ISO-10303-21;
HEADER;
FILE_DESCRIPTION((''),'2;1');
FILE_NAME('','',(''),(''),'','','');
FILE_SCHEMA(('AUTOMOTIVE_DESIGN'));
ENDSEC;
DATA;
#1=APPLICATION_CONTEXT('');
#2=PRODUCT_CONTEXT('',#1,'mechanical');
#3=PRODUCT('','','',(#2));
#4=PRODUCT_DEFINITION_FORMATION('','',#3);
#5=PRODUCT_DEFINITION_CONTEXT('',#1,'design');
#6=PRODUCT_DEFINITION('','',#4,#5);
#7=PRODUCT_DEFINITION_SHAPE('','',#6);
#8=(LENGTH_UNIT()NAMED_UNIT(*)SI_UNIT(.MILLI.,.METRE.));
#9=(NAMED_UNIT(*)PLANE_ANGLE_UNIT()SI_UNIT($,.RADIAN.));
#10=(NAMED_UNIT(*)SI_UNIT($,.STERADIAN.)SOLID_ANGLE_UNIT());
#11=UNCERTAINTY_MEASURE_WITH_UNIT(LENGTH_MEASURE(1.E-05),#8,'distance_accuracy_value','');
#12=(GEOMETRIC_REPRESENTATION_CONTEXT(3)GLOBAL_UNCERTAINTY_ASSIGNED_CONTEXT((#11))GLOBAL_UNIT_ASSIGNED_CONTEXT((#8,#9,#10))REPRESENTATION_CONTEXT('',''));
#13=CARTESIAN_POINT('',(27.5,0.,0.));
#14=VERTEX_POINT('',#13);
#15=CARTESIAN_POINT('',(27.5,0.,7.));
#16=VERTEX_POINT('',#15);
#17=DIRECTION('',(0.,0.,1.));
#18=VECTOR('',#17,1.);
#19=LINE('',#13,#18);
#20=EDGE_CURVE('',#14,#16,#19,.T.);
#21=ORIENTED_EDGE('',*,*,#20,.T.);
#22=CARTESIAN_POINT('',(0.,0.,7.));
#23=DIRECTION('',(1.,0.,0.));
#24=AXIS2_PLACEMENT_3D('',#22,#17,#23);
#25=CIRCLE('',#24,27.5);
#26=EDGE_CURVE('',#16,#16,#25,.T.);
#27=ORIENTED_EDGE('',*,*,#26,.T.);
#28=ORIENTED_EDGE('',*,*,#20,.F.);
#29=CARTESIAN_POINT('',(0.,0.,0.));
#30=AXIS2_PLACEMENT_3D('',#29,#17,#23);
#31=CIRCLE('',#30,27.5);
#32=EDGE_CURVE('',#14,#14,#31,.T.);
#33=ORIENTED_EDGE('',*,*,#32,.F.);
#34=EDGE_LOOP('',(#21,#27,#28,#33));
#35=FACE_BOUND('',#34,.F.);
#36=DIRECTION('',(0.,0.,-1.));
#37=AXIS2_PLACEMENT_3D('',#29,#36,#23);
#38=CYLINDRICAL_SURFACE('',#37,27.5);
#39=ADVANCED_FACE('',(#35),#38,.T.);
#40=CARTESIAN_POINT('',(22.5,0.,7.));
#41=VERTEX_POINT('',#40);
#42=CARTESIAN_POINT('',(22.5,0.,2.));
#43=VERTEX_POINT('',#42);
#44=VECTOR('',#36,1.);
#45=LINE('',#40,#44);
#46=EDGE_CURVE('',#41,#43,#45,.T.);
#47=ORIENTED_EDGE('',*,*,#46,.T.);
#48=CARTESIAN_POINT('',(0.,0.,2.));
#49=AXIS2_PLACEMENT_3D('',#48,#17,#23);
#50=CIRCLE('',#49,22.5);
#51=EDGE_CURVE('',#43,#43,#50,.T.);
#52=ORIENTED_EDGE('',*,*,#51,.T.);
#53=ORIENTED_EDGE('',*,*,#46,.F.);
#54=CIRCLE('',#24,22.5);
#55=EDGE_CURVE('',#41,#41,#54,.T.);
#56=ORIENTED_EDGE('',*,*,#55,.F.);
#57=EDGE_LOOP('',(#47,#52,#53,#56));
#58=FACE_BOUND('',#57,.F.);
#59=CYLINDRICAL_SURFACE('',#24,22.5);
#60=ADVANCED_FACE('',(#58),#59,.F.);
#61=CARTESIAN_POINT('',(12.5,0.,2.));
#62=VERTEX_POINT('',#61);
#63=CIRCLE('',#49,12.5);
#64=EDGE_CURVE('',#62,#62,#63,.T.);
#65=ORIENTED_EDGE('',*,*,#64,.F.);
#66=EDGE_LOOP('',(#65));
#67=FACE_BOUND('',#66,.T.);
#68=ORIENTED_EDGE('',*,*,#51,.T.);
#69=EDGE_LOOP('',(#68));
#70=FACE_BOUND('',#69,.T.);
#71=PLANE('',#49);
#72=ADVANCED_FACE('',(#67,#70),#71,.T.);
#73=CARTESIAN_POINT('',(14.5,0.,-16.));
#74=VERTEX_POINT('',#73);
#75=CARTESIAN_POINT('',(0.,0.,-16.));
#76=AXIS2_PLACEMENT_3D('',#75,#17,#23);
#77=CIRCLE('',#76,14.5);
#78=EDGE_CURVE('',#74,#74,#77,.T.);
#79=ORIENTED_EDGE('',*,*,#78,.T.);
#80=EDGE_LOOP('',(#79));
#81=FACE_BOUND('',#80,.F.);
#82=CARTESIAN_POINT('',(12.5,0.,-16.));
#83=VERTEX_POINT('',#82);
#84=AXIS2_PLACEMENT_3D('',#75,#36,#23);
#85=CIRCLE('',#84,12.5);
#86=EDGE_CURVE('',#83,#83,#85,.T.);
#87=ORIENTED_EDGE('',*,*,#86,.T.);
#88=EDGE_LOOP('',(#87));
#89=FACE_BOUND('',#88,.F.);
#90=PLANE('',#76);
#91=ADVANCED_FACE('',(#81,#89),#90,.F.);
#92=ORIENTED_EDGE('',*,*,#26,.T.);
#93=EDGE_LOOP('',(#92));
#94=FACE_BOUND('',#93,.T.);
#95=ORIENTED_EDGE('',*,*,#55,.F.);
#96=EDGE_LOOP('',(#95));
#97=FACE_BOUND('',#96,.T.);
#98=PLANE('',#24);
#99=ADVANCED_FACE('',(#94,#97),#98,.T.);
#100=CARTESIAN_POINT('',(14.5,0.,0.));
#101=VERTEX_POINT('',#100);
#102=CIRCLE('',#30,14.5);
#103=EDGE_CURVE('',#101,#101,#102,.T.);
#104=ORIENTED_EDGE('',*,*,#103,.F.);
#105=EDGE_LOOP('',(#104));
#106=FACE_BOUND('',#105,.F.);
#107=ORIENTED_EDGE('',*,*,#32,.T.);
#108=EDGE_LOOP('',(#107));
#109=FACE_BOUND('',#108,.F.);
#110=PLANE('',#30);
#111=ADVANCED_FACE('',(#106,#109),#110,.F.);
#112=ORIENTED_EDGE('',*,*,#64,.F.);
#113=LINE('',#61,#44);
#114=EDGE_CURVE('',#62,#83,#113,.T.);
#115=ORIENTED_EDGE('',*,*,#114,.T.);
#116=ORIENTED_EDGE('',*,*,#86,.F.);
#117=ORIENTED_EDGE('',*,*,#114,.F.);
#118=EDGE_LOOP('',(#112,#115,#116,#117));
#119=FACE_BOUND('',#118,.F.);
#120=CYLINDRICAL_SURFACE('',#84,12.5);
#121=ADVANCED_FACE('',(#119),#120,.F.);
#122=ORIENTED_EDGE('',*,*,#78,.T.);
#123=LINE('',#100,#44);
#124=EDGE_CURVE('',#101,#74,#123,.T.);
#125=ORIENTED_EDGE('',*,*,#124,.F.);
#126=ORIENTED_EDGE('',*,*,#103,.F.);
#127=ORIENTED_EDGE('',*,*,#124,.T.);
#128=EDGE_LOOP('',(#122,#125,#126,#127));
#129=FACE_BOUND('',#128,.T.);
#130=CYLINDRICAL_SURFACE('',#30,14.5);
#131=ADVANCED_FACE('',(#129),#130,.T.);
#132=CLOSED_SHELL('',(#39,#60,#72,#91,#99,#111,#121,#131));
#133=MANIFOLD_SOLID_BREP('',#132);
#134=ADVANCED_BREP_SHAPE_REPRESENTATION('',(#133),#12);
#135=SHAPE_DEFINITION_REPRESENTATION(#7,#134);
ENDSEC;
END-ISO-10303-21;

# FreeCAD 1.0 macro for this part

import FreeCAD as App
import Part
import Sketcher

V = App.Vector
Q = App.Units.Quantity

doc = App.newDocument("Part")
body = doc.addObject("PartDesign::Body", "Body")

# Sketch on XY plane
sketch1 = body.newObject("Sketcher::SketchObject", "Sketch")
sketch1.AttachmentSupport = (doc.getObject("XY_Plane"), [""])
sketch1.MapMode = "FlatFace"
sketch1.addGeometry(Part.Circle(V(0, 0, 0), V(0, 0, 1), 27.5), False)
sketch1.addConstraint([
    Sketcher.Constraint("Coincident", 0, 3, -1, 1),
    Sketcher.Constraint("Diameter", 0, Q("55 mm")),
])
pad1 = body.newObject("PartDesign::Pad", "Pad")
pad1.Profile = sketch1
pad1.Length = 7

# Sketch on XY plane
sketch2 = body.newObject("Sketcher::SketchObject", "Sketch001")
sketch2.AttachmentSupport = (doc.getObject("XY_Plane"), [""])
sketch2.MapMode = "FlatFace"
sketch2.AttachmentOffset = App.Placement(V(0, 0, 7), App.Rotation())
sketch2.addGeometry(Part.Circle(V(0, 0, 0), V(0, 0, 1), 12.5), False)
sketch2.addConstraint([
    Sketcher.Constraint("Coincident", 0, 3, -1, 1),
    Sketcher.Constraint("Diameter", 0, Q("25 mm")),
])
pocket1 = body.newObject("PartDesign::Pocket", "Pocket")
pocket1.Profile = sketch2
pocket1.Type = "ThroughAll"

# Sketch on XY plane
sketch3 = body.newObject("Sketcher::SketchObject", "Sketch002")
sketch3.AttachmentSupport = (doc.getObject("XY_Plane"), [""])
sketch3.MapMode = "FlatFace"
sketch3.AttachmentOffset = App.Placement(V(0, 0, 7), App.Rotation())
sketch3.addGeometry(Part.Circle(V(0, 0, 0), V(0, 0, 1), 22.5), False)
sketch3.addConstraint([
    Sketcher.Constraint("Coincident", 0, 3, -1, 1),
    Sketcher.Constraint("Diameter", 0, Q("45 mm")),
])
pocket2 = body.newObject("PartDesign::Pocket", "Pocket001")
pocket2.Profile = sketch3
pocket2.Length = 5

# Sketch on XY plane
sketch4 = body.newObject("Sketcher::SketchObject", "Sketch003")
sketch4.AttachmentSupport = (doc.getObject("XY_Plane"), [""])
sketch4.MapMode = "FlatFace"
sketch4.addGeometry(Part.Circle(V(0, 0, 0), V(0, 0, 1), 14.5), False)
sketch4.addConstraint([
    Sketcher.Constraint("Coincident", 0, 3, -1, 1),
    Sketcher.Constraint("Diameter", 0, Q("29 mm")),
])
pad2 = body.newObject("PartDesign::Pad", "Pad001")
pad2.Profile = sketch4
pad2.Length = 16
pad2.Reversed = True

# Sketch on XY plane
sketch5 = body.newObject("Sketcher::SketchObject", "Sketch004")
sketch5.AttachmentSupport = (doc.getObject("XY_Plane"), [""])
sketch5.MapMode = "FlatFace"
sketch5.AttachmentOffset = App.Placement(V(0, 0, -16), App.Rotation())
sketch5.addGeometry(Part.Circle(V(0, 0, 0), V(0, 0, 1), 12.5), False)
sketch5.addConstraint([
    Sketcher.Constraint("Coincident", 0, 3, -1, 1),
    Sketcher.Constraint("Diameter", 0, Q("25 mm")),
])
pocket3 = body.newObject("PartDesign::Pocket", "Pocket002")
pocket3.Profile = sketch5
pocket3.Type = "ThroughAll"
pocket3.Reversed = True

doc.recompute()
